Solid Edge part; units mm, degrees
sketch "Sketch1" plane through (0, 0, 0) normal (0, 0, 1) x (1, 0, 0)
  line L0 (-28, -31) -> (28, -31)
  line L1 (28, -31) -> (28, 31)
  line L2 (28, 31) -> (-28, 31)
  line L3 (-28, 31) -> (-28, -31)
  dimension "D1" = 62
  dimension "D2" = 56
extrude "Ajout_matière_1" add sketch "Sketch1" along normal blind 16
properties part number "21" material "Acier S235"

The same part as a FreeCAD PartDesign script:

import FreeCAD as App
import Part
import Sketcher

doc = App.newDocument("Part")
params = doc.addObject("Spreadsheet::Sheet", "Params")
for row, (alias, value) in enumerate([
    ("sketch1_height", "62 mm"),
    ("pad1_length", "16 mm"),
], start=1):
    params.set(f"A{row}", alias)
    params.set(f"B{row}", "=" + value)
    params.setAlias(f"B{row}", alias)

body = doc.addObject("PartDesign::Body", "Body")

sketch1 = body.newObject("Sketcher::SketchObject", "Sketch")
sketch1.AttachmentSupport = (doc.getObject("XY_Plane"), [""])
sketch1.MapMode = "FlatFace"
sketch1.addGeometry([
    Part.LineSegment(App.Vector(-28, 31, 0), App.Vector(-28, -31, 0)),
    Part.LineSegment(App.Vector(-28, -31, 0), App.Vector(28, -31, 0)),
    Part.LineSegment(App.Vector(28, -31, 0), App.Vector(28, 31, 0)),
    Part.LineSegment(App.Vector(28, 31, 0), App.Vector(-28, 31, 0)),
], False)
sketch1.addConstraint([
    Sketcher.Constraint("Coincident", 0, 2, 1, 1),
    Sketcher.Constraint("Coincident", 1, 2, 2, 1),
    Sketcher.Constraint("Coincident", 2, 2, 3, 1),
    Sketcher.Constraint("Coincident", 3, 2, 0, 1),
    Sketcher.Constraint("Vertical", 0),
    Sketcher.Constraint("Horizontal", 1),
    Sketcher.Constraint("Vertical", 2),
    Sketcher.Constraint("Horizontal", 3),
    Sketcher.Constraint("Symmetric", 0, 2, 2, 2, -1, 1),
    Sketcher.Constraint("DistanceX", 0, 2, -1, 1, 28.0),
    Sketcher.Constraint("DistanceY", 0, 2, 0, 1, 62.0),
])
sketch1.setExpression("Constraints[10]", "Params.sketch1_height")
pad1 = body.newObject("PartDesign::Pad", "Pad")
pad1.Profile = sketch1
pad1.setExpression("Length", "Params.pad1_length")

doc.recompute()
